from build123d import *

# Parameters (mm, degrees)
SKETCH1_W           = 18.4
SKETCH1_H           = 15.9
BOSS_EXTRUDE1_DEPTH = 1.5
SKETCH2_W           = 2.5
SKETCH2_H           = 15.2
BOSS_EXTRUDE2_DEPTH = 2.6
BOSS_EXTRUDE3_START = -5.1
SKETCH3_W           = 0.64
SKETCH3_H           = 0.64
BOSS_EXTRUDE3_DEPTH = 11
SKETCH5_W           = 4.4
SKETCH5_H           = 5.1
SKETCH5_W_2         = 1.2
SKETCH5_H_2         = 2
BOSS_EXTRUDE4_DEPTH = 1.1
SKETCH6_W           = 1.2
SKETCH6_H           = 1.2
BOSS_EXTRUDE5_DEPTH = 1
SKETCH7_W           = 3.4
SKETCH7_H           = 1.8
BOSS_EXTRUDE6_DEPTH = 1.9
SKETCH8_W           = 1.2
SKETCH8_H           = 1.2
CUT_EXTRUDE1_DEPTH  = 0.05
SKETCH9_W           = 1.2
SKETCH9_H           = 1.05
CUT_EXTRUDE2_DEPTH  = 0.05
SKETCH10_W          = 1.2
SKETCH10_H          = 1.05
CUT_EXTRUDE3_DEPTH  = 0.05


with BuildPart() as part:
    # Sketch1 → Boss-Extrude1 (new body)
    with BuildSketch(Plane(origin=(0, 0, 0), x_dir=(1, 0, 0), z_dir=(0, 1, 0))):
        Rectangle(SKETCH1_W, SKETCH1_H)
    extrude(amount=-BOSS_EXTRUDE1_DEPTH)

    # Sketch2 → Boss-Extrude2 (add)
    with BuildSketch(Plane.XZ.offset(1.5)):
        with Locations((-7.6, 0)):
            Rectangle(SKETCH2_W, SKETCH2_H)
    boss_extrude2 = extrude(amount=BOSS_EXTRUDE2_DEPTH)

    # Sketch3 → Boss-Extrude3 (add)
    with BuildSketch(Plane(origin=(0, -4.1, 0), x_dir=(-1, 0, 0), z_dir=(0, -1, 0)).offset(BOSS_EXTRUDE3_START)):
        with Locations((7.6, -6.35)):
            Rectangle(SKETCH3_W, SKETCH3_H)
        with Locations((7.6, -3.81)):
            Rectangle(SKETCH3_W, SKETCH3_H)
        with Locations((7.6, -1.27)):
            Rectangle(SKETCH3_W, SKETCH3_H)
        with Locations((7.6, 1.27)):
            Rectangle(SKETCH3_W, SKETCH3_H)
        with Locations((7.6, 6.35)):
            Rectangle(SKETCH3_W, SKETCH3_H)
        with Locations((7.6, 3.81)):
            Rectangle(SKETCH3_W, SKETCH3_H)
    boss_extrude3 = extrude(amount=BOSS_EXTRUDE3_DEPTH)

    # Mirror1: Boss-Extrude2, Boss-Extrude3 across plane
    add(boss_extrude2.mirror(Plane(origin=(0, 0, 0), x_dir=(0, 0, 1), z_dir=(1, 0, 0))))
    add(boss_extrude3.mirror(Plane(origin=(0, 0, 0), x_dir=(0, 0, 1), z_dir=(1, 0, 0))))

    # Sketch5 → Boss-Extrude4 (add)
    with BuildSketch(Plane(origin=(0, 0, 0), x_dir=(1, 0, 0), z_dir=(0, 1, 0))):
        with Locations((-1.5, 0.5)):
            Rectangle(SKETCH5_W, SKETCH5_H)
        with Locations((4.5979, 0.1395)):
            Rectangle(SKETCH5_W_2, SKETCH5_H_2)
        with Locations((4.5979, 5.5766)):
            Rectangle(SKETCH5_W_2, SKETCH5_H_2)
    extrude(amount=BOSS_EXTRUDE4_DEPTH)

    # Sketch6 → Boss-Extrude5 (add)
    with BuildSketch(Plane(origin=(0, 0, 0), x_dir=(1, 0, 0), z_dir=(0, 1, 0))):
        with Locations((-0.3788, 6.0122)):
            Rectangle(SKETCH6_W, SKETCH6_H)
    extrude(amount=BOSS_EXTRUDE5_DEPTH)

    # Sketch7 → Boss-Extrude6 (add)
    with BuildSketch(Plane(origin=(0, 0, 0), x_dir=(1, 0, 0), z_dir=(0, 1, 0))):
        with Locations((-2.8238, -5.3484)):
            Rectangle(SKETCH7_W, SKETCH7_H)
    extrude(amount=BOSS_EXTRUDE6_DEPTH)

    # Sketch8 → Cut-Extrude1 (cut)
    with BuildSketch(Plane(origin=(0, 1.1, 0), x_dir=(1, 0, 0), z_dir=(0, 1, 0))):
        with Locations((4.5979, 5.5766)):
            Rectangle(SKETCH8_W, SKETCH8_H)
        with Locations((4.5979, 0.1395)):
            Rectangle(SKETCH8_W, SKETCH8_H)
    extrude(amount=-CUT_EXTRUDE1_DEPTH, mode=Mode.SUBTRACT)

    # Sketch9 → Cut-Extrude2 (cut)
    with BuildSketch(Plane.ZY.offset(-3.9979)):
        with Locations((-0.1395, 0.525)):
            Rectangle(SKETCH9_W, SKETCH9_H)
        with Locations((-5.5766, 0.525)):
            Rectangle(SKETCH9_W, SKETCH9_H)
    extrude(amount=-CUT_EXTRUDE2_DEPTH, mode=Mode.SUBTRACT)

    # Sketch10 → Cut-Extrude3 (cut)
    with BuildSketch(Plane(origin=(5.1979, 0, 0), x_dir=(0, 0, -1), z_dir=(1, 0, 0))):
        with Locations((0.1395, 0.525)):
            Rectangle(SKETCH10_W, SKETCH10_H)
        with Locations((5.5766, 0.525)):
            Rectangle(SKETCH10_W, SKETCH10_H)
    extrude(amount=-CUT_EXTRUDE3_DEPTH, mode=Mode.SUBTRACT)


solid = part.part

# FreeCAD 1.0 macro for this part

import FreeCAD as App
import Part
import Sketcher

V = App.Vector
Q = App.Units.Quantity

doc = App.newDocument("Part")
body = doc.addObject("PartDesign::Body", "Body")

sketch1 = body.newObject("Sketcher::SketchObject", "Sketch")
sketch1.AttachmentSupport = (doc.getObject("XZ_Plane"), [""])
sketch1.MapMode = "FlatFace"
sketch1.addGeometry([
    Part.LineSegment(V(-9.2, -7.95, 0), V(-9.2, 7.95, 0)),
    Part.LineSegment(V(-9.2, 7.95, 0), V(9.2, 7.95, 0)),
    Part.LineSegment(V(9.2, 7.95, 0), V(9.2, -7.95, 0)),
    Part.LineSegment(V(9.2, -7.95, 0), V(-9.2, -7.95, 0)),
], False)
sketch1.addConstraint([
    Sketcher.Constraint("Coincident", 0, 2, 1, 1),
    Sketcher.Constraint("Coincident", 1, 2, 2, 1),
    Sketcher.Constraint("Coincident", 2, 2, 3, 1),
    Sketcher.Constraint("Coincident", 3, 2, 0, 1),
    Sketcher.Constraint("Vertical", 0),
    Sketcher.Constraint("Horizontal", 1),
    Sketcher.Constraint("Vertical", 2),
    Sketcher.Constraint("Horizontal", 3),
    Sketcher.Constraint("Symmetric", 0, 2, 2, 2, -1, 1),
    Sketcher.Constraint("DistanceX", 1, 1, 1, 2, Q("18.4 mm")),
    Sketcher.Constraint("DistanceY", 0, 1, 0, 2, Q("15.9 mm")),
])
pad1 = body.newObject("PartDesign::Pad", "Pad")
pad1.Profile = sketch1
pad1.Length = 1.5

sketch2 = body.newObject("Sketcher::SketchObject", "Sketch001")
sketch2.AttachmentSupport = (doc.getObject("XZ_Plane"), [""])
sketch2.MapMode = "FlatFace"
sketch2.AttachmentOffset = App.Placement(V(0, 0, 1.5), App.Rotation())
sketch2.addGeometry([
    Part.LineSegment(V(-8.85, 7.6, 0), V(-8.85, -7.6, 0)),
    Part.LineSegment(V(-8.85, -7.6, 0), V(-6.35, -7.6, 0)),
    Part.LineSegment(V(-6.35, -7.6, 0), V(-6.35, 7.6, 0)),
    Part.LineSegment(V(-6.35, 7.6, 0), V(-8.85, 7.6, 0)),
], False)
sketch2.addConstraint([
    Sketcher.Constraint("Coincident", 0, 2, 1, 1),
    Sketcher.Constraint("Coincident", 1, 2, 2, 1),
    Sketcher.Constraint("Coincident", 2, 2, 3, 1),
    Sketcher.Constraint("Coincident", 3, 2, 0, 1),
    Sketcher.Constraint("Vertical", 0),
    Sketcher.Constraint("Horizontal", 1),
    Sketcher.Constraint("Vertical", 2),
    Sketcher.Constraint("Horizontal", 3),
    Sketcher.Constraint("DistanceX", 1, 1, 1, 2, Q("2.5 mm")),
    Sketcher.Constraint("DistanceY", 0, 2, 0, 1, Q("15.2 mm")),
    Sketcher.Constraint("DistanceY", 0, 2, -1, 1, Q("7.6 mm")),
    Sketcher.Constraint("DistanceX", 0, 2, -1, 1, Q("8.85 mm")),
])
pad2 = body.newObject("PartDesign::Pad", "Pad001")
pad2.Profile = sketch2
pad2.Length = 2.6

sketch3 = body.newObject("Sketcher::SketchObject", "Sketch002")
sketch3.AttachmentSupport = (doc.getObject("XZ_Plane"), [""])
sketch3.MapMode = "FlatFace"
sketch3.AttachmentOffset = App.Placement(V(0, 0, -1), App.Rotation())
sketch3.addGeometry([
    Part.LineSegment(V(-7.28, 6.03, 0), V(-7.28, 6.67, 0)),
    Part.LineSegment(V(-7.28, 6.67, 0), V(-7.92, 6.67, 0)),
    Part.LineSegment(V(-7.92, 6.67, 0), V(-7.92, 6.03, 0)),
    Part.LineSegment(V(-7.92, 6.03, 0), V(-7.28, 6.03, 0)),
    Part.LineSegment(V(-7.28, 3.49, 0), V(-7.28, 4.13, 0)),
    Part.LineSegment(V(-7.28, 4.13, 0), V(-7.92, 4.13, 0)),
    Part.LineSegment(V(-7.92, 4.13, 0), V(-7.92, 3.49, 0)),
    Part.LineSegment(V(-7.92, 3.49, 0), V(-7.28, 3.49, 0)),
    Part.LineSegment(V(-7.28, 0.95, 0), V(-7.28, 1.59, 0)),
    Part.LineSegment(V(-7.28, 1.59, 0), V(-7.92, 1.59, 0)),
    Part.LineSegment(V(-7.92, 1.59, 0), V(-7.92, 0.95, 0)),
    Part.LineSegment(V(-7.92, 0.95, 0), V(-7.28, 0.95, 0)),
    Part.LineSegment(V(-7.28, -1.59, 0), V(-7.28, -0.95, 0)),
    Part.LineSegment(V(-7.28, -0.95, 0), V(-7.92, -0.95, 0)),
    Part.LineSegment(V(-7.92, -0.95, 0), V(-7.92, -1.59, 0)),
    Part.LineSegment(V(-7.92, -1.59, 0), V(-7.28, -1.59, 0)),
    Part.LineSegment(V(-7.28, -6.67, 0), V(-7.28, -6.03, 0)),
    Part.LineSegment(V(-7.28, -6.03, 0), V(-7.92, -6.03, 0)),
    Part.LineSegment(V(-7.92, -6.03, 0), V(-7.92, -6.67, 0)),
    Part.LineSegment(V(-7.92, -6.67, 0), V(-7.28, -6.67, 0)),
    Part.LineSegment(V(-7.28, -4.13, 0), V(-7.28, -3.49, 0)),
    Part.LineSegment(V(-7.28, -3.49, 0), V(-7.92, -3.49, 0)),
    Part.LineSegment(V(-7.92, -3.49, 0), V(-7.92, -4.13, 0)),
    Part.LineSegment(V(-7.92, -4.13, 0), V(-7.28, -4.13, 0)),
], False)
sketch3.addConstraint([
    Sketcher.Constraint("Coincident", 0, 2, 1, 1),
    Sketcher.Constraint("Coincident", 1, 2, 2, 1),
    Sketcher.Constraint("Coincident", 2, 2, 3, 1),
    Sketcher.Constraint("Coincident", 3, 2, 0, 1),
    Sketcher.Constraint("Coincident", 4, 2, 5, 1),
    Sketcher.Constraint("Coincident", 5, 2, 6, 1),
    Sketcher.Constraint("Coincident", 6, 2, 7, 1),
    Sketcher.Constraint("Coincident", 7, 2, 4, 1),
    Sketcher.Constraint("Coincident", 8, 2, 9, 1),
    Sketcher.Constraint("Coincident", 9, 2, 10, 1),
    Sketcher.Constraint("Coincident", 10, 2, 11, 1),
    Sketcher.Constraint("Coincident", 11, 2, 8, 1),
    Sketcher.Constraint("Coincident", 12, 2, 13, 1),
    Sketcher.Constraint("Coincident", 13, 2, 14, 1),
    Sketcher.Constraint("Coincident", 14, 2, 15, 1),
    Sketcher.Constraint("Coincident", 15, 2, 12, 1),
    Sketcher.Constraint("Coincident", 16, 2, 17, 1),
    Sketcher.Constraint("Coincident", 17, 2, 18, 1),
    Sketcher.Constraint("Coincident", 18, 2, 19, 1),
    Sketcher.Constraint("Coincident", 19, 2, 16, 1),
    Sketcher.Constraint("Coincident", 20, 2, 21, 1),
    Sketcher.Constraint("Coincident", 21, 2, 22, 1),
    Sketcher.Constraint("Coincident", 22, 2, 23, 1),
    Sketcher.Constraint("Coincident", 23, 2, 20, 1),
    Sketcher.Constraint("Vertical", 0),
    Sketcher.Constraint("Horizontal", 1),
    Sketcher.Constraint("Vertical", 2),
    Sketcher.Constraint("Horizontal", 3),
    Sketcher.Constraint("Vertical", 4),
    Sketcher.Constraint("Horizontal", 5),
    Sketcher.Constraint("Vertical", 6),
    Sketcher.Constraint("Horizontal", 7),
    Sketcher.Constraint("Vertical", 8),
    Sketcher.Constraint("Horizontal", 9),
    Sketcher.Constraint("Vertical", 10),
    Sketcher.Constraint("Horizontal", 11),
    Sketcher.Constraint("Vertical", 12),
    Sketcher.Constraint("Horizontal", 13),
    Sketcher.Constraint("Vertical", 14),
    Sketcher.Constraint("Horizontal", 15),
    Sketcher.Constraint("Vertical", 16),
    Sketcher.Constraint("Horizontal", 17),
    Sketcher.Constraint("Vertical", 18),
    Sketcher.Constraint("Horizontal", 19),
    Sketcher.Constraint("Vertical", 20),
    Sketcher.Constraint("Horizontal", 21),
    Sketcher.Constraint("Vertical", 22),
    Sketcher.Constraint("Horizontal", 23),
    Sketcher.Constraint("Symmetric", 11, 2, 12, 2, -1),
    Sketcher.Constraint("Symmetric", 9, 2, 14, 2, -1),
    Sketcher.Constraint("Symmetric", 3, 2, 16, 2, -1),
    Sketcher.Constraint("Symmetric", 1, 2, 18, 2, -1),
    Sketcher.Constraint("Symmetric", 7, 2, 20, 2, -1),
    Sketcher.Constraint("Symmetric", 5, 2, 22, 2, -1),
    Sketcher.Constraint("Vertical", 3, 2, 4, 2),
    Sketcher.Constraint("Vertical", 2, 2, 5, 2),
    Sketcher.Constraint("Vertical", 7, 2, 8, 2),
    Sketcher.Constraint("Vertical", 6, 2, 9, 2),
    Sketcher.Constraint("Equal", 23, 0),
    Sketcher.Constraint("Equal", 2, 4),
    Sketcher.Constraint("Equal", 6, 8),
    Sketcher.Constraint("DistanceX", 1, 2, 1, 1, Q("0.64 mm")),
    Sketcher.Constraint("DistanceY", 4, 2, 3, 2, Q("1.9 mm")),
    Sketcher.Constraint("DistanceY", 8, 2, 7, 2, Q("1.9 mm")),
    Sketcher.Constraint("DistanceY", 12, 2, 11, 2, Q("1.9 mm")),
    Sketcher.Constraint("DistanceX", 0, 2, -1, 1, Q("7.28 mm")),
])
pad3 = body.newObject("PartDesign::Pad", "Pad002")
pad3.Profile = sketch3
pad3.Length = 11
doc.recompute()

mirrored = body.newObject("PartDesign::Mirrored", "Mirrored")
mirrored.Originals = [pad2, pad3]
mirrored.MirrorPlane = (doc.getObject("YZ_Plane"), [""])
body.Tip = mirrored

sketch4 = body.newObject("Sketcher::SketchObject", "Sketch003")
sketch4.AttachmentSupport = (doc.getObject("XZ_Plane"), [""])
sketch4.MapMode = "FlatFace"
sketch4.addGeometry([
    Part.LineSegment(V(-3.7, -3.05, 0), V(-3.7, 2.05, 0)),
    Part.LineSegment(V(-3.7, 2.05, 0), V(0.7, 2.05, 0)),
    Part.LineSegment(V(0.7, 2.05, 0), V(0.7, -3.05, 0)),
    Part.LineSegment(V(0.7, -3.05, 0), V(-3.7, -3.05, 0)),
    Part.LineSegment(V(3.9979, -1.1395, 0), V(3.9979, 0.8605, 0)),
    Part.LineSegment(V(3.9979, 0.8605, 0), V(5.1979, 0.8605, 0)),
    Part.LineSegment(V(5.1979, 0.8605, 0), V(5.1979, -1.1395, 0)),
    Part.LineSegment(V(5.1979, -1.1395, 0), V(3.9979, -1.1395, 0)),
    Part.LineSegment(V(3.9979, -6.5766, 0), V(3.9979, -4.5766, 0)),
    Part.LineSegment(V(3.9979, -4.5766, 0), V(5.1979, -4.5766, 0)),
    Part.LineSegment(V(5.1979, -4.5766, 0), V(5.1979, -6.5766, 0)),
    Part.LineSegment(V(5.1979, -6.5766, 0), V(3.9979, -6.5766, 0)),
], False)
sketch4.addConstraint([
    Sketcher.Constraint("Coincident", 0, 2, 1, 1),
    Sketcher.Constraint("Coincident", 1, 2, 2, 1),
    Sketcher.Constraint("Coincident", 2, 2, 3, 1),
    Sketcher.Constraint("Coincident", 3, 2, 0, 1),
    Sketcher.Constraint("Coincident", 4, 2, 5, 1),
    Sketcher.Constraint("Coincident", 5, 2, 6, 1),
    Sketcher.Constraint("Coincident", 6, 2, 7, 1),
    Sketcher.Constraint("Coincident", 7, 2, 4, 1),
    Sketcher.Constraint("Coincident", 8, 2, 9, 1),
    Sketcher.Constraint("Coincident", 9, 2, 10, 1),
    Sketcher.Constraint("Coincident", 10, 2, 11, 1),
    Sketcher.Constraint("Coincident", 11, 2, 8, 1),
    Sketcher.Constraint("Vertical", 0),
    Sketcher.Constraint("Horizontal", 1),
    Sketcher.Constraint("Vertical", 2),
    Sketcher.Constraint("Horizontal", 3),
    Sketcher.Constraint("Vertical", 4),
    Sketcher.Constraint("Horizontal", 5),
    Sketcher.Constraint("Vertical", 6),
    Sketcher.Constraint("Horizontal", 7),
    Sketcher.Constraint("Vertical", 8),
    Sketcher.Constraint("Horizontal", 9),
    Sketcher.Constraint("Vertical", 10),
    Sketcher.Constraint("Horizontal", 11),
    Sketcher.Constraint("Vertical", 7, 2, 8, 2),
    Sketcher.Constraint("Vertical", 6, 2, 9, 2),
    Sketcher.Constraint("Equal", 6, 8),
    Sketcher.Constraint("DistanceY", 4, 1, 4, 2, Q("2 mm")),
    Sketcher.Constraint("DistanceX", 1, 1, 1, 2, Q("4.4 mm")),
    Sketcher.Constraint("DistanceX", 5, 1, 5, 2, Q("1.2 mm")),
    Sketcher.Constraint("DistanceY", 0, 1, 0, 2, Q("5.1 mm")),
    Sketcher.Constraint("DistanceX", 0, 2, -1, 1, Q("3.7 mm")),
    Sketcher.Constraint("DistanceY", -1, 1, 0, 2, Q("2.05 mm")),
    Sketcher.Constraint("DistanceX", -1, 1, 4, 2, Q("3.9979 mm")),
    Sketcher.Constraint("DistanceY", -1, 1, 4, 2, Q("0.8605 mm")),
    Sketcher.Constraint("DistanceY", 8, 2, -1, 1, Q("4.5766 mm")),
])
pad4 = body.newObject("PartDesign::Pad", "Pad003")
pad4.Profile = sketch4
pad4.Length = 1.1
pad4.Reversed = True

sketch5 = body.newObject("Sketcher::SketchObject", "Sketch004")
sketch5.AttachmentSupport = (doc.getObject("XZ_Plane"), [""])
sketch5.MapMode = "FlatFace"
sketch5.addGeometry([
    Part.LineSegment(V(-0.9788, -6.6122, 0), V(-0.9788, -5.4122, 0)),
    Part.LineSegment(V(-0.9788, -5.4122, 0), V(0.2212, -5.4122, 0)),
    Part.LineSegment(V(0.2212, -5.4122, 0), V(0.2212, -6.6122, 0)),
    Part.LineSegment(V(0.2212, -6.6122, 0), V(-0.9788, -6.6122, 0)),
], False)
sketch5.addConstraint([
    Sketcher.Constraint("Coincident", 0, 2, 1, 1),
    Sketcher.Constraint("Coincident", 1, 2, 2, 1),
    Sketcher.Constraint("Coincident", 2, 2, 3, 1),
    Sketcher.Constraint("Coincident", 3, 2, 0, 1),
    Sketcher.Constraint("Vertical", 0),
    Sketcher.Constraint("Horizontal", 1),
    Sketcher.Constraint("Vertical", 2),
    Sketcher.Constraint("Horizontal", 3),
    Sketcher.Constraint("Equal", 3, 0),
    Sketcher.Constraint("DistanceX", 1, 1, 1, 2, Q("1.2 mm")),
    Sketcher.Constraint("DistanceX", 0, 2, -1, 1, Q("0.9788 mm")),
    Sketcher.Constraint("DistanceY", 0, 2, -1, 1, Q("5.4122 mm")),
])
pad5 = body.newObject("PartDesign::Pad", "Pad004")
pad5.Profile = sketch5
pad5.Length = 1
pad5.Reversed = True

sketch6 = body.newObject("Sketcher::SketchObject", "Sketch005")
sketch6.AttachmentSupport = (doc.getObject("XZ_Plane"), [""])
sketch6.MapMode = "FlatFace"
sketch6.addGeometry([
    Part.LineSegment(V(-4.5238, 4.4484, 0), V(-4.5238, 6.2484, 0)),
    Part.LineSegment(V(-4.5238, 6.2484, 0), V(-1.1238, 6.2484, 0)),
    Part.LineSegment(V(-1.1238, 6.2484, 0), V(-1.1238, 4.4484, 0)),
    Part.LineSegment(V(-1.1238, 4.4484, 0), V(-4.5238, 4.4484, 0)),
], False)
sketch6.addConstraint([
    Sketcher.Constraint("Coincident", 0, 2, 1, 1),
    Sketcher.Constraint("Coincident", 1, 2, 2, 1),
    Sketcher.Constraint("Coincident", 2, 2, 3, 1),
    Sketcher.Constraint("Coincident", 3, 2, 0, 1),
    Sketcher.Constraint("Vertical", 0),
    Sketcher.Constraint("Horizontal", 1),
    Sketcher.Constraint("Vertical", 2),
    Sketcher.Constraint("Horizontal", 3),
    Sketcher.Constraint("DistanceX", 1, 1, 1, 2, Q("3.4 mm")),
    Sketcher.Constraint("DistanceY", 0, 1, 0, 2, Q("1.8 mm")),
    Sketcher.Constraint("DistanceX", 0, 2, -1, 1, Q("4.5238 mm")),
    Sketcher.Constraint("DistanceY", -1, 1, 0, 2, Q("6.2484 mm")),
])
pad6 = body.newObject("PartDesign::Pad", "Pad005")
pad6.Profile = sketch6
pad6.Length = 1.9
pad6.Reversed = True

sketch7 = body.newObject("Sketcher::SketchObject", "Sketch006")
sketch7.AttachmentSupport = (doc.getObject("XZ_Plane"), [""])
sketch7.MapMode = "FlatFace"
sketch7.AttachmentOffset = App.Placement(V(0, 0, -1.1), App.Rotation())
sketch7.addGeometry([
    Part.LineSegment(V(3.9979, -6.1766, 0), V(3.9979, -4.9766, 0)),
    Part.LineSegment(V(3.9979, -4.9766, 0), V(5.1979, -4.9766, 0)),
    Part.LineSegment(V(5.1979, -4.9766, 0), V(5.1979, -6.1766, 0)),
    Part.LineSegment(V(5.1979, -6.1766, 0), V(3.9979, -6.1766, 0)),
    Part.LineSegment(V(3.9979, -0.7395, 0), V(3.9979, 0.4605, 0)),
    Part.LineSegment(V(3.9979, 0.4605, 0), V(5.1979, 0.4605, 0)),
    Part.LineSegment(V(5.1979, 0.4605, 0), V(5.1979, -0.7395, 0)),
    Part.LineSegment(V(5.1979, -0.7395, 0), V(3.9979, -0.7395, 0)),
], False)
sketch7.addConstraint([
    Sketcher.Constraint("Coincident", 0, 2, 1, 1),
    Sketcher.Constraint("Coincident", 1, 2, 2, 1),
    Sketcher.Constraint("Coincident", 2, 2, 3, 1),
    Sketcher.Constraint("Coincident", 3, 2, 0, 1),
    Sketcher.Constraint("Coincident", 4, 2, 5, 1),
    Sketcher.Constraint("Coincident", 5, 2, 6, 1),
    Sketcher.Constraint("Coincident", 6, 2, 7, 1),
    Sketcher.Constraint("Coincident", 7, 2, 4, 1),
    Sketcher.Constraint("Vertical", 0),
    Sketcher.Constraint("Horizontal", 1),
    Sketcher.Constraint("Vertical", 2),
    Sketcher.Constraint("Horizontal", 3),
    Sketcher.Constraint("Vertical", 4),
    Sketcher.Constraint("Horizontal", 5),
    Sketcher.Constraint("Vertical", 6),
    Sketcher.Constraint("Horizontal", 7),
    Sketcher.Constraint("Vertical", 3, 2, 4, 2),
    Sketcher.Constraint("Vertical", 2, 2, 5, 2),
    Sketcher.Constraint("Equal", 7, 0),
    Sketcher.Constraint("Equal", 2, 4),
    Sketcher.Constraint("DistanceX", 1, 1, 1, 2, Q("1.2 mm")),
    Sketcher.Constraint("DistanceX", -1, 1, 0, 2, Q("3.9979 mm")),
    Sketcher.Constraint("DistanceY", 0, 2, -1, 1, Q("4.9766 mm")),
    Sketcher.Constraint("DistanceY", -1, 1, 4, 2, Q("0.4605 mm")),
])
pocket1 = body.newObject("PartDesign::Pocket", "Pocket")
pocket1.Profile = sketch7
pocket1.Length = 0.05
pocket1.Reversed = True

sketch8 = body.newObject("Sketcher::SketchObject", "Sketch007")
sketch8.AttachmentSupport = (doc.getObject("YZ_Plane"), [""])
sketch8.MapMode = "FlatFace"
sketch8.AttachmentOffset = App.Placement(V(0, 0, 3.9979), App.Rotation())
sketch8.addGeometry([
    Part.LineSegment(V(1.05, -0.7395, 0), V(0, -0.7395, 0)),
    Part.LineSegment(V(0, -0.7395, 0), V(0, 0.4605, 0)),
    Part.LineSegment(V(0, 0.4605, 0), V(1.05, 0.4605, 0)),
    Part.LineSegment(V(1.05, 0.4605, 0), V(1.05, -0.7395, 0)),
    Part.LineSegment(V(1.05, -6.1766, 0), V(0, -6.1766, 0)),
    Part.LineSegment(V(0, -6.1766, 0), V(0, -4.9766, 0)),
    Part.LineSegment(V(0, -4.9766, 0), V(1.05, -4.9766, 0)),
    Part.LineSegment(V(1.05, -4.9766, 0), V(1.05, -6.1766, 0)),
], False)
sketch8.addConstraint([
    Sketcher.Constraint("Coincident", 0, 2, 1, 1),
    Sketcher.Constraint("Coincident", 1, 2, 2, 1),
    Sketcher.Constraint("Coincident", 2, 2, 3, 1),
    Sketcher.Constraint("Coincident", 3, 2, 0, 1),
    Sketcher.Constraint("Coincident", 4, 2, 5, 1),
    Sketcher.Constraint("Coincident", 5, 2, 6, 1),
    Sketcher.Constraint("Coincident", 6, 2, 7, 1),
    Sketcher.Constraint("Coincident", 7, 2, 4, 1),
    Sketcher.Constraint("Horizontal", 0),
    Sketcher.Constraint("Vertical", 1),
    Sketcher.Constraint("Horizontal", 2),
    Sketcher.Constraint("Vertical", 3),
    Sketcher.Constraint("Horizontal", 4),
    Sketcher.Constraint("Vertical", 5),
    Sketcher.Constraint("Horizontal", 6),
    Sketcher.Constraint("Vertical", 7),
    Sketcher.Constraint("PointOnObject", 0, 2, -2),
    Sketcher.Constraint("PointOnObject", 4, 2, -2),
    Sketcher.Constraint("Vertical", 3, 2, 6, 2),
    Sketcher.Constraint("Equal", 3, 5),
    Sketcher.Constraint("DistanceY", 1, 1, 1, 2, Q("1.2 mm")),
    Sketcher.Constraint("DistanceX", 0, 2, 0, 1, Q("1.05 mm")),
    Sketcher.Constraint("DistanceY", 0, 2, -1, 1, Q("0.7395 mm")),
    Sketcher.Constraint("DistanceY", 4, 2, -1, 1, Q("6.1766 mm")),
])
pocket2 = body.newObject("PartDesign::Pocket", "Pocket001")
pocket2.Profile = sketch8
pocket2.Length = 0.05
pocket2.Reversed = True

sketch9 = body.newObject("Sketcher::SketchObject", "Sketch008")
sketch9.AttachmentSupport = (doc.getObject("YZ_Plane"), [""])
sketch9.MapMode = "FlatFace"
sketch9.AttachmentOffset = App.Placement(V(0, 0, 5.1979), App.Rotation())
sketch9.addGeometry([
    Part.LineSegment(V(1.05, 0.4605, 0), V(0, 0.4605, 0)),
    Part.LineSegment(V(0, 0.4605, 0), V(0, -0.7395, 0)),
    Part.LineSegment(V(0, -0.7395, 0), V(1.05, -0.7395, 0)),
    Part.LineSegment(V(1.05, -0.7395, 0), V(1.05, 0.4605, 0)),
    Part.LineSegment(V(1.05, -4.9766, 0), V(0, -4.9766, 0)),
    Part.LineSegment(V(0, -4.9766, 0), V(0, -6.1766, 0)),
    Part.LineSegment(V(0, -6.1766, 0), V(1.05, -6.1766, 0)),
    Part.LineSegment(V(1.05, -6.1766, 0), V(1.05, -4.9766, 0)),
], False)
sketch9.addConstraint([
    Sketcher.Constraint("Coincident", 0, 2, 1, 1),
    Sketcher.Constraint("Coincident", 1, 2, 2, 1),
    Sketcher.Constraint("Coincident", 2, 2, 3, 1),
    Sketcher.Constraint("Coincident", 3, 2, 0, 1),
    Sketcher.Constraint("Coincident", 4, 2, 5, 1),
    Sketcher.Constraint("Coincident", 5, 2, 6, 1),
    Sketcher.Constraint("Coincident", 6, 2, 7, 1),
    Sketcher.Constraint("Coincident", 7, 2, 4, 1),
    Sketcher.Constraint("Horizontal", 0),
    Sketcher.Constraint("Vertical", 1),
    Sketcher.Constraint("Horizontal", 2),
    Sketcher.Constraint("Vertical", 3),
    Sketcher.Constraint("Horizontal", 4),
    Sketcher.Constraint("Vertical", 5),
    Sketcher.Constraint("Horizontal", 6),
    Sketcher.Constraint("Vertical", 7),
    Sketcher.Constraint("PointOnObject", 0, 2, -2),
    Sketcher.Constraint("PointOnObject", 4, 2, -2),
    Sketcher.Constraint("Vertical", 3, 2, 6, 2),
    Sketcher.Constraint("Equal", 3, 5),
    Sketcher.Constraint("DistanceY", 1, 2, 1, 1, Q("1.2 mm")),
    Sketcher.Constraint("DistanceX", 0, 2, 0, 1, Q("1.05 mm")),
    Sketcher.Constraint("DistanceY", -1, 1, 0, 2, Q("0.4605 mm")),
    Sketcher.Constraint("DistanceY", 4, 2, -1, 1, Q("4.9766 mm")),
])
pocket3 = body.newObject("PartDesign::Pocket", "Pocket002")
pocket3.Profile = sketch9
pocket3.Length = 0.05

doc.recompute()
